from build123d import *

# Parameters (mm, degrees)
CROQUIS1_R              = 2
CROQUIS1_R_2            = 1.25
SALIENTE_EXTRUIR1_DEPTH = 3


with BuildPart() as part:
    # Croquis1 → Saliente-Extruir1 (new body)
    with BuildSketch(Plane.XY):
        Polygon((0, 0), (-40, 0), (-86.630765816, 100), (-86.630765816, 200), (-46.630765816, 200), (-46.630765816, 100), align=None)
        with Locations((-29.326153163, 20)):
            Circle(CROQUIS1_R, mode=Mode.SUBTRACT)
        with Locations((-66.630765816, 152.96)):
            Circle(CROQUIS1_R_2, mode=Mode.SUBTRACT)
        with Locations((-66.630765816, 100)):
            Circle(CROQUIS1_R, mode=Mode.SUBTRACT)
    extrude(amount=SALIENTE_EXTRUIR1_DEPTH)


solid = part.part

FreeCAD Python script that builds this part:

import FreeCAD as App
import Part
import Sketcher
from FreeCAD import Vector
Q = App.Units.Quantity

doc = App.newDocument("Part")
body = doc.addObject("PartDesign::Body", "Body")

# Sketch on XY plane
sketch1 = doc.addObject("Sketcher::SketchObject", "Sketch")
body.addObject(sketch1)
sketch1.AttachmentSupport = (doc.XY_Plane, [""])
sketch1.MapMode = "FlatFace"
sketch1.addGeometry([
    Part.LineSegment(Vector(-40, 0, 0), Vector(0, 0, 0)),  # 0
    Part.LineSegment(Vector(0, 0, 0), Vector(-46.6, 100, 0)),  # 1
    Part.LineSegment(Vector(-46.6, 100, 0), Vector(-46.6, 200, 0)),  # 2
    Part.LineSegment(Vector(-46.6, 200, 0), Vector(-86.6, 200, 0)),  # 3
    Part.LineSegment(Vector(-86.6, 200, 0), Vector(-86.6, 100, 0)),  # 4
    Part.LineSegment(Vector(-86.6, 100, 0), Vector(-40, 0, 0)),  # 5
    Part.Circle(Vector(-29.3, 20, 0), Vector(0, 0, 1), 2),  # 6
    Part.Circle(Vector(-66.6, 100, 0), Vector(0, 0, 1), 2),  # 7
    Part.Circle(Vector(-66.6, 153, 0), Vector(0, 0, 1), 1.2),  # 8
], False)
sketch1.addConstraint([
    Sketcher.Constraint("Coincident", 0, 2, 1, 1),
    Sketcher.Constraint("Coincident", 1, 2, 2, 1),
    Sketcher.Constraint("Coincident", 2, 2, 3, 1),
    Sketcher.Constraint("Coincident", 3, 2, 4, 1),
    Sketcher.Constraint("Coincident", 4, 2, 5, 1),
    Sketcher.Constraint("Coincident", 5, 2, 0, 1),
    Sketcher.Constraint("Horizontal", 0),
    Sketcher.Constraint("Vertical", 2),
    Sketcher.Constraint("Horizontal", 3),
    Sketcher.Constraint("Vertical", 4),
    Sketcher.Constraint("Coincident", 0, 2, -1, 1),
    Sketcher.Constraint("Equal", 6, 7),
    Sketcher.Constraint("Parallel", 1, 5),
    Sketcher.Constraint("Horizontal", 7, 3, 1, 2),
    Sketcher.Constraint("Horizontal", 1, 2, 4, 2),
    Sketcher.Constraint("Vertical", 7, 3, 8, 3),
    Sketcher.Constraint("Diameter", 6, 4.0),
    Sketcher.Constraint("Diameter", 8, 2.5),
    Sketcher.Constraint("DistanceX", 0, 1, 0, 2, 40.0),
    Sketcher.Constraint("DistanceY", 2, 1, 2, 2, 100.0),
    Sketcher.Constraint("Angle", 1, Q("115 deg")),
    Sketcher.Constraint("DistanceY", -1, 1, 6, 3, 20.0),
    Sketcher.Constraint("DistanceY", -1, 1, 7, 3, 100.0),
    Sketcher.Constraint("DistanceX", 7, 3, 1, 2, 20.0),
    Sketcher.Constraint("DistanceY", -1, 1, 8, 3, 152.96),
    Sketcher.Constraint("DistanceX", 6, 3, -1, 1, 29.326153),
])
pad1 = doc.addObject("PartDesign::Pad", "Pad")
body.addObject(pad1)
pad1.Profile = sketch1
pad1.Length = 3

doc.recompute()
